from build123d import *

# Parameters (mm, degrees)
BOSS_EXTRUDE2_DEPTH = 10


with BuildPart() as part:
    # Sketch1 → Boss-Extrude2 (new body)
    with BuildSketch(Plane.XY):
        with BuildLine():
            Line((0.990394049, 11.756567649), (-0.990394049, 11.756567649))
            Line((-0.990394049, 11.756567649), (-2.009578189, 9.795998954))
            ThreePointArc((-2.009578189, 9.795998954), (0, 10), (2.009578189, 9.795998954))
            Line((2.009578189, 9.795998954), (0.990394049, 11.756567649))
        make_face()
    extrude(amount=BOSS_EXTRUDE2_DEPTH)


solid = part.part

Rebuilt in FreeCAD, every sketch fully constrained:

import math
import FreeCAD as App
import Part
import Sketcher

V = App.Vector

doc = App.newDocument("Part")
body = doc.addObject("PartDesign::Body", "Body")

# Sketch on XY plane
sketch1 = body.newObject("Sketcher::SketchObject", "Sketch")
sketch1.AttachmentSupport = (doc.getObject("XY_Plane"), [""])
sketch1.MapMode = "FlatFace"
sketch1.addGeometry([
    Part.LineSegment(V(1, 11.8, 0), V(-1, 11.8, 0)),
    Part.LineSegment(V(-1, 11.8, 0), V(-2, 9.8, 0)),
    Part.ArcOfCircle(Part.Circle(V(0, 0, 0), V(0, 0, 1), 10), math.radians(78), math.radians(102)),
    Part.LineSegment(V(2, 9.8, 0), V(1, 11.8, 0)),
], False)
sketch1.addConstraint([
    Sketcher.Constraint("Coincident", 0, 2, 1, 1),
    Sketcher.Constraint("Coincident", 1, 2, 2, 2),
    Sketcher.Constraint("Coincident", 2, 1, 3, 1),
    Sketcher.Constraint("Coincident", 3, 2, 0, 1),
    Sketcher.Constraint("Horizontal", 0),
    Sketcher.Constraint("Coincident", 2, 3, -1, 1),
    Sketcher.Constraint("Horizontal", 1, 2, 2, 1),
    Sketcher.Constraint("Equal", 1, 3),
    Sketcher.Constraint("Radius", 2, 10.0),
    Sketcher.Constraint("DistanceY", -1, 1, 1, 2, 9.795999),
    Sketcher.Constraint("DistanceX", 0, 2, 0, 1, 1.980788),
    Sketcher.Constraint("DistanceY", 1, 2, 0, 2, 1.960569),
])
pad1 = body.newObject("PartDesign::Pad", "Pad")
pad1.Profile = sketch1
pad1.Length = 10

doc.recompute()
